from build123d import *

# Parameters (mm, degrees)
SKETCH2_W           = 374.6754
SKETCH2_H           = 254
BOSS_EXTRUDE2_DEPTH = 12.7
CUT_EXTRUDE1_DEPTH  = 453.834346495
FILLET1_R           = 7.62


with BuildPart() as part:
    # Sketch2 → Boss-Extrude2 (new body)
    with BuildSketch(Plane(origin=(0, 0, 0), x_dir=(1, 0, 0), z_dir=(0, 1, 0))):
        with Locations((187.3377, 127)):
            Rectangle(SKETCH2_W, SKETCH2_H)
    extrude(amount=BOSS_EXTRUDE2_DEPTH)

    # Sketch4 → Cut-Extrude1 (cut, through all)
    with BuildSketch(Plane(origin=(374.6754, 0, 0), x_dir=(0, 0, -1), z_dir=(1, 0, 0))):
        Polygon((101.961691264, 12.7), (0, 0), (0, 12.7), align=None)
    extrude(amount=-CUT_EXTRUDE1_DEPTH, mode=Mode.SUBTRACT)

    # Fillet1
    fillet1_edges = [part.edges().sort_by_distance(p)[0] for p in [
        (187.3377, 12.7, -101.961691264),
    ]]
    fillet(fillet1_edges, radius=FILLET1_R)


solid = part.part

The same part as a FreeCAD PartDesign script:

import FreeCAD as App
import Part
import Sketcher
Q = App.Units.Quantity


def edges_at(feature, points):
    """Names of the edges that pass closest to the given points."""
    edges = feature.Shape.Edges
    near = lambda p: min(range(len(edges)), key=lambda i: edges[i].distToShape(Part.Vertex(*p))[0])
    return sorted({f"Edge{near(p) + 1}" for p in points})

doc = App.newDocument("Part")
body = doc.addObject("PartDesign::Body", "Body")

# Sketch on XZ plane
sketch1 = body.newObject("Sketcher::SketchObject", "Sketch")
sketch1.AttachmentSupport = (doc.getObject("XZ_Plane"), [""])
sketch1.MapMode = "FlatFace"
sketch1.addGeometry([
    Part.LineSegment(App.Vector(0, -254, 0), App.Vector(0, 0, 0)),
    Part.LineSegment(App.Vector(0, 0, 0), App.Vector(375, 0, 0)),
    Part.LineSegment(App.Vector(375, 0, 0), App.Vector(375, -254, 0)),
    Part.LineSegment(App.Vector(375, -254, 0), App.Vector(0, -254, 0)),
], False)
sketch1.addConstraint([
    Sketcher.Constraint("Coincident", 0, 2, 1, 1),
    Sketcher.Constraint("Coincident", 1, 2, 2, 1),
    Sketcher.Constraint("Coincident", 2, 2, 3, 1),
    Sketcher.Constraint("Coincident", 3, 2, 0, 1),
    Sketcher.Constraint("Vertical", 0),
    Sketcher.Constraint("Horizontal", 1),
    Sketcher.Constraint("Vertical", 2),
    Sketcher.Constraint("Horizontal", 3),
    Sketcher.Constraint("Coincident", 0, 2, -1, 1),
    Sketcher.Constraint("DistanceY", 0, 1, 0, 2, Q("10 in")),
    Sketcher.Constraint("DistanceX", 1, 1, 1, 2, Q("14.751 in")),
])
pad1 = body.newObject("PartDesign::Pad", "Pad")
pad1.Profile = sketch1
pad1.Length = Q("0.5 in")
pad1.Reversed = True

# Sketch on YZ plane
sketch2 = body.newObject("Sketcher::SketchObject", "Sketch001")
sketch2.AttachmentSupport = (doc.getObject("YZ_Plane"), [""])
sketch2.MapMode = "FlatFace"
sketch2.AttachmentOffset = App.Placement(App.Vector(0, 0, 14.751 * 25.4), App.Rotation())
sketch2.addGeometry([
    Part.LineSegment(App.Vector(0, 0, 0), App.Vector(13, -102, 0)),
    Part.LineSegment(App.Vector(13, -102, 0), App.Vector(13, 0, 0)),
    Part.LineSegment(App.Vector(13, 0, 0), App.Vector(0, 0, 0)),
], False)
sketch2.addConstraint([
    Sketcher.Constraint("Coincident", 0, 2, 1, 1),
    Sketcher.Constraint("Coincident", 1, 2, 2, 1),
    Sketcher.Constraint("Coincident", 2, 2, 0, 1),
    Sketcher.Constraint("Vertical", 1),
    Sketcher.Constraint("Horizontal", 2),
    Sketcher.Constraint("Coincident", 2, 2, -1, 1),
    Sketcher.Constraint("DistanceX", 2, 2, 2, 1, Q("0.5 in")),
    Sketcher.Constraint("Angle", 0, Q("-82.9 deg")),
])
pocket1 = body.newObject("PartDesign::Pocket", "Pocket")
pocket1.Profile = sketch2
pocket1.Type = "ThroughAll"
doc.recompute()

fillet = body.newObject("PartDesign::Fillet", "Fillet")
fillet.Base = (pocket1, edges_at(pocket1, [(187.338, 12.7, -101.962)]))
fillet.Radius = Q("0.3 in")

doc.recompute()
